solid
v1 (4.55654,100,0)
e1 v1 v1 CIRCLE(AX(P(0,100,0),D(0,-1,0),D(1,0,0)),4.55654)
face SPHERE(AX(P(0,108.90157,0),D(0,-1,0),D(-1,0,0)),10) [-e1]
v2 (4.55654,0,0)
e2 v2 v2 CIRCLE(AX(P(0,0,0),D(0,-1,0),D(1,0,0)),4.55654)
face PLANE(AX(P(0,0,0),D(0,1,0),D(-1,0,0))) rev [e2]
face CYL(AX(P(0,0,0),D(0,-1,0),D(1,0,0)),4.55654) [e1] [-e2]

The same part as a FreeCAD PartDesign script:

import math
import FreeCAD as App
import Part
import Sketcher

doc = App.newDocument("Part")
body = doc.addObject("PartDesign::Body", "Body")

# Sketch on XY plane
sketch1 = body.newObject("Sketcher::SketchObject", "Sketch")
sketch1.AttachmentSupport = (doc.getObject("XY_Plane"), [""])
sketch1.MapMode = "FlatFace"
sketch1.addGeometry(Part.LineSegment(App.Vector(-4.55654, 0, 0), App.Vector(0, 0, 0)), False)
sketch1.addGeometry(Part.LineSegment(App.Vector(0, 0, 0), App.Vector(0, 118.90157, 0)), False)
sketch1.addGeometry(Part.ArcOfCircle(Part.Circle(App.Vector(0, 108.90157, 0), App.Vector(0, 0, 1), 10), math.radians(90), math.radians(242.89298)), False)
sketch1.addGeometry(Part.LineSegment(App.Vector(-4.55654, 100, 0), App.Vector(-4.55654, 0, 0)), False)
sketch1.addConstraint(Sketcher.Constraint("Coincident", 0, 2, 1, 1))
sketch1.addConstraint(Sketcher.Constraint("Coincident", 1, 2, 2, 1))
sketch1.addConstraint(Sketcher.Constraint("Coincident", 2, 2, 3, 1))
sketch1.addConstraint(Sketcher.Constraint("Coincident", 3, 2, 0, 1))
sketch1.addConstraint(Sketcher.Constraint("Horizontal", 0))
sketch1.addConstraint(Sketcher.Constraint("Vertical", 1))
sketch1.addConstraint(Sketcher.Constraint("Vertical", 3))
sketch1.addConstraint(Sketcher.Constraint("Coincident", 0, 2, -1, 1))
sketch1.addConstraint(Sketcher.Constraint("PointOnObject", 2, 3, -2))
sketch1.addConstraint(Sketcher.Constraint("Radius", 2, 10.0))
sketch1.addConstraint(Sketcher.Constraint("DistanceY", 3, 2, 3, 1, 100.0))
sketch1.addConstraint(Sketcher.Constraint("DistanceX", 0, 1, 0, 2, 4.55654))
revolution = body.newObject("PartDesign::Revolution", "Revolution")
revolution.Profile = sketch1
revolution.ReferenceAxis = (sketch1, ["V_Axis"])
revolution.Angle = 360

doc.recompute()
